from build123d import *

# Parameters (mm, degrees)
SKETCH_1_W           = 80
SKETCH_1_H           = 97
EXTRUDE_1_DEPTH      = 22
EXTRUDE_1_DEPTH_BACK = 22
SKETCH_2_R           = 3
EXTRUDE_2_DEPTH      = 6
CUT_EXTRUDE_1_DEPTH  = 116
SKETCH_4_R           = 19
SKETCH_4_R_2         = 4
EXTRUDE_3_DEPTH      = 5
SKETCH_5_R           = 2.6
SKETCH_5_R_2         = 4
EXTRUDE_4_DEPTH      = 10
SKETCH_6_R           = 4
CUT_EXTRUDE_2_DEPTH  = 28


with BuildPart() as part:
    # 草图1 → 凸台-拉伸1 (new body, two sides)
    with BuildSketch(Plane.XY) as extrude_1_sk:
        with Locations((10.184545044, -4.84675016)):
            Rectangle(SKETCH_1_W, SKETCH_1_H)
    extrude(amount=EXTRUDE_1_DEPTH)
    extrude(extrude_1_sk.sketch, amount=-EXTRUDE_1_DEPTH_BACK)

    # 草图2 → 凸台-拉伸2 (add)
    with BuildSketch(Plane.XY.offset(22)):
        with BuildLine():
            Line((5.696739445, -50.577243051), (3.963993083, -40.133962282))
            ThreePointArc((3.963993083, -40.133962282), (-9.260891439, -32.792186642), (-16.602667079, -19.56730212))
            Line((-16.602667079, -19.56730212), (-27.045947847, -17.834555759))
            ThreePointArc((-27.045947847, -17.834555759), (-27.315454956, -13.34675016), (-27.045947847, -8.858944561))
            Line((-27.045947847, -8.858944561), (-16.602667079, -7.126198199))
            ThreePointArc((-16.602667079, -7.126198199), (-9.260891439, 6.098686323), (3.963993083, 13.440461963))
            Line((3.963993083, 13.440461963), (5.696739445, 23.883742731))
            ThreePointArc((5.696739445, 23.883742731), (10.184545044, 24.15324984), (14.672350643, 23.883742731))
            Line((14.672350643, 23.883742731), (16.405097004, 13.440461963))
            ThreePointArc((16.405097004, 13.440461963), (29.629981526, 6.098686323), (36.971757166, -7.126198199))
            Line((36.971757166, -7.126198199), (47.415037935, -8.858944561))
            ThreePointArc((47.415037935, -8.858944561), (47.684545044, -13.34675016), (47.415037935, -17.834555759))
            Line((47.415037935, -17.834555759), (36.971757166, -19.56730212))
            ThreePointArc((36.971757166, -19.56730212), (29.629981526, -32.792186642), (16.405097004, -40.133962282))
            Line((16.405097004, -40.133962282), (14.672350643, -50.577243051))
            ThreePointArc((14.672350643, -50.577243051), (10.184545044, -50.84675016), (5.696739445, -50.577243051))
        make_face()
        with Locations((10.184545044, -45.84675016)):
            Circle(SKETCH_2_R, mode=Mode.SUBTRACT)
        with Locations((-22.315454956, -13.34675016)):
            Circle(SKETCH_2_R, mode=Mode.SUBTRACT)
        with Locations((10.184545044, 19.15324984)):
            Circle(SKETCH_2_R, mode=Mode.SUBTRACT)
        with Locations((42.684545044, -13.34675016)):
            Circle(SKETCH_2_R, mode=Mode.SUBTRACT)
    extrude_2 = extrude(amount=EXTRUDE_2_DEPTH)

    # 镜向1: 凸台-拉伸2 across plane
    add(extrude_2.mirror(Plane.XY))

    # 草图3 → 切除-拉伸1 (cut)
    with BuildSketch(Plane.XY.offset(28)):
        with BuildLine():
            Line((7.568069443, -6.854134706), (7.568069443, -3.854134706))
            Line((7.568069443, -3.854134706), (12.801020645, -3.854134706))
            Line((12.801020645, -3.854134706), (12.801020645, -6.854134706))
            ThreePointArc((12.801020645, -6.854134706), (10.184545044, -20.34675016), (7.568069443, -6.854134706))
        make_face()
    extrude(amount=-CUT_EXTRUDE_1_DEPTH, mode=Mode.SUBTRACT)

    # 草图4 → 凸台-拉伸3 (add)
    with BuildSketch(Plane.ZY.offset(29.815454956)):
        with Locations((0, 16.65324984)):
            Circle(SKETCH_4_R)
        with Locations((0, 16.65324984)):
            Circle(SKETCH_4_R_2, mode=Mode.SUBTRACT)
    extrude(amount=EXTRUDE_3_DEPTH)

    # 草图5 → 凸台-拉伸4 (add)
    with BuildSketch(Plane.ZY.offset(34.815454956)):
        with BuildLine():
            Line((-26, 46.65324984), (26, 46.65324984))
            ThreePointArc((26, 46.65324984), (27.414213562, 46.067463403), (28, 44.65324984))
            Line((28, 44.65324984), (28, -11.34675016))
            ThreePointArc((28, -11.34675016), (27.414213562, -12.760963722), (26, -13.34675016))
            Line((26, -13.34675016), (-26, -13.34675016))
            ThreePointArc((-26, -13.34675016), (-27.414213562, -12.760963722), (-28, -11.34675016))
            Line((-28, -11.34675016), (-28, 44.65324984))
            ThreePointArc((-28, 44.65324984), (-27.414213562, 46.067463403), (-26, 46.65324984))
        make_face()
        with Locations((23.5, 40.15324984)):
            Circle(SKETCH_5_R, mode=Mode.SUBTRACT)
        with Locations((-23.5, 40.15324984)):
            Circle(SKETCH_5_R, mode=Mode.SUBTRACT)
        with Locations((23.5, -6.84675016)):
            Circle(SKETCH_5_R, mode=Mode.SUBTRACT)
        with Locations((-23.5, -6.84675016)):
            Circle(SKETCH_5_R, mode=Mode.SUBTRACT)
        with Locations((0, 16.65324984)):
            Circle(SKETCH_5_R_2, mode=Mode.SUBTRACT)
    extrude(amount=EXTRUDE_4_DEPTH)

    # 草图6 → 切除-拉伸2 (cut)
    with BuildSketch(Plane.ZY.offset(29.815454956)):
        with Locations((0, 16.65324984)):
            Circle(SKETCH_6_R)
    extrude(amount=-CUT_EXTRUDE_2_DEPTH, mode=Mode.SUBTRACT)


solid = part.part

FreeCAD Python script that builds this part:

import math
import FreeCAD as App
import Part
import Sketcher

V = App.Vector

doc = App.newDocument("Part")
body = doc.addObject("PartDesign::Body", "Body")

# Sketch on XY plane
sketch1 = doc.addObject("Sketcher::SketchObject", "Sketch")
body.addObject(sketch1)
sketch1.AttachmentSupport = (doc.XY_Plane, [""])
sketch1.MapMode = "FlatFace"
sketch1.addGeometry([
    Part.LineSegment(V(-30, 44, 0), V(-30, -53, 0)),
    Part.LineSegment(V(-30, -53, 0), V(50, -53, 0)),
    Part.LineSegment(V(50, -53, 0), V(50, 44, 0)),
    Part.LineSegment(V(50, 44, 0), V(-30, 44, 0)),
], False)
sketch1.addConstraint([
    Sketcher.Constraint("Coincident", 0, 2, 1, 1),
    Sketcher.Constraint("Coincident", 1, 2, 2, 1),
    Sketcher.Constraint("Coincident", 2, 2, 3, 1),
    Sketcher.Constraint("Coincident", 3, 2, 0, 1),
    Sketcher.Constraint("Vertical", 0),
    Sketcher.Constraint("Horizontal", 1),
    Sketcher.Constraint("Vertical", 2),
    Sketcher.Constraint("Horizontal", 3),
    Sketcher.Constraint("DistanceX", 1, 1, 1, 2, 80.0),
    Sketcher.Constraint("DistanceY", 0, 2, 0, 1, 97.0),
    Sketcher.Constraint("DistanceY", 0, 2, -1, 1, 53.34675),
    Sketcher.Constraint("DistanceX", 0, 2, -1, 1, 29.815455),
])
pad1 = doc.addObject("PartDesign::Pad", "Pad")
body.addObject(pad1)
pad1.Profile = sketch1
pad1.Type = "TwoLengths"
pad1.Length = 22
pad1.Length2 = 22

# Sketch on XY plane
sketch2 = doc.addObject("Sketcher::SketchObject", "Sketch001")
body.addObject(sketch2)
sketch2.AttachmentSupport = (doc.XY_Plane, [""])
sketch2.MapMode = "FlatFace"
sketch2.AttachmentOffset = App.Placement(V(0, 0, 22), App.Rotation())
sketch2.addGeometry([
    Part.LineSegment(V(4, -40.1, 0), V(5.7, -50.6, 0)),  # 0
    Part.ArcOfCircle(Part.Circle(V(10.2, -13.3, 0), V(0, 0, 1), 37.5), math.radians(-96.87), math.radians(-83.13)),  # 1
    Part.LineSegment(V(14.7, -50.6, 0), V(16.4, -40.1, 0)),  # 2
    Part.ArcOfCircle(Part.Circle(V(10.2, -13.3, 0), V(0, 0, 1), 27.5), math.radians(-77), math.radians(-13)),  # 3
    Part.LineSegment(V(37, -19.6, 0), V(47.4, -17.8, 0)),  # 4
    Part.ArcOfCircle(Part.Circle(V(10.2, -13.3, 0), V(0, 0, 1), 37.5), math.radians(-6.87), math.radians(6.87)),  # 5
    Part.LineSegment(V(47.4, -8.9, 0), V(37, -7.1, 0)),  # 6
    Part.ArcOfCircle(Part.Circle(V(10.2, -13.3, 0), V(0, 0, 1), 27.5), math.radians(13), math.radians(77)),  # 7
    Part.LineSegment(V(16.4, 13.4, 0), V(14.7, 23.9, 0)),  # 8
    Part.ArcOfCircle(Part.Circle(V(10.2, -13.3, 0), V(0, 0, 1), 37.5), math.radians(83.13), math.radians(96.87)),  # 9
    Part.LineSegment(V(5.7, 23.9, 0), V(4, 13.4, 0)),  # 10
    Part.ArcOfCircle(Part.Circle(V(10.2, -13.3, 0), V(0, 0, 1), 27.5), math.radians(103), math.radians(167)),  # 11
    Part.LineSegment(V(-16.6, -7.1, 0), V(-27, -8.9, 0)),  # 12
    Part.ArcOfCircle(Part.Circle(V(10.2, -13.3, 0), V(0, 0, 1), 37.5), math.radians(173.13), math.radians(186.87)),  # 13
    Part.LineSegment(V(-27, -17.8, 0), V(-16.6, -19.6, 0)),  # 14
    Part.ArcOfCircle(Part.Circle(V(10.2, -13.3, 0), V(0, 0, 1), 27.5), math.radians(-167), math.radians(-103)),  # 15
    Part.Circle(V(10.2, -45.8, 0), V(0, 0, 1), 3),  # 16
    Part.Circle(V(42.7, -13.3, 0), V(0, 0, 1), 3),  # 17
    Part.Circle(V(10.2, 19.2, 0), V(0, 0, 1), 3),  # 18
    Part.Circle(V(-22.3, -13.3, 0), V(0, 0, 1), 3),  # 19
], False)
sketch2.addConstraint([
    Sketcher.Constraint("Coincident", 0, 2, 1, 1),
    Sketcher.Constraint("Coincident", 1, 2, 2, 1),
    Sketcher.Constraint("Coincident", 2, 2, 3, 1),
    Sketcher.Constraint("Coincident", 3, 2, 4, 1),
    Sketcher.Constraint("Coincident", 4, 2, 5, 1),
    Sketcher.Constraint("Coincident", 5, 2, 6, 1),
    Sketcher.Constraint("Coincident", 6, 2, 7, 1),
    Sketcher.Constraint("Coincident", 7, 2, 8, 1),
    Sketcher.Constraint("Coincident", 8, 2, 9, 1),
    Sketcher.Constraint("Coincident", 9, 2, 10, 1),
    Sketcher.Constraint("Coincident", 10, 2, 11, 1),
    Sketcher.Constraint("Coincident", 11, 2, 12, 1),
    Sketcher.Constraint("Coincident", 12, 2, 13, 1),
    Sketcher.Constraint("Coincident", 13, 2, 14, 1),
    Sketcher.Constraint("Coincident", 14, 2, 15, 1),
    Sketcher.Constraint("Coincident", 15, 2, 0, 1),
    Sketcher.Constraint("Coincident", 3, 3, 1, 3),
    Sketcher.Constraint("Coincident", 5, 3, 1, 3),
    Sketcher.Constraint("Coincident", 7, 3, 1, 3),
    Sketcher.Constraint("Coincident", 9, 3, 1, 3),
    Sketcher.Constraint("Coincident", 11, 3, 1, 3),
    Sketcher.Constraint("Coincident", 13, 3, 1, 3),
    Sketcher.Constraint("Coincident", 15, 3, 1, 3),
    Sketcher.Constraint("Equal", 1, 5),
    Sketcher.Constraint("Equal", 3, 7),
    Sketcher.Constraint("Equal", 5, 9),
    Sketcher.Constraint("Equal", 7, 11),
    Sketcher.Constraint("Equal", 9, 13),
    Sketcher.Constraint("Equal", 11, 15),
    Sketcher.Constraint("Equal", 16, 17),
    Sketcher.Constraint("Equal", 17, 18),
    Sketcher.Constraint("Equal", 18, 19),
    Sketcher.Constraint("Perpendicular", 0, 4),
    Sketcher.Constraint("Perpendicular", 2, 6),
    Sketcher.Constraint("Perpendicular", 4, 8),
    Sketcher.Constraint("Perpendicular", 6, 10),
    Sketcher.Constraint("Perpendicular", 8, 12),
    Sketcher.Constraint("Perpendicular", 10, 14),
    Sketcher.Constraint("Horizontal", 15, 3, 17, 3),
    Sketcher.Constraint("Horizontal", 17, 3, 19, 3),
    Sketcher.Constraint("Horizontal", 0, 2, 1, 2),
    Sketcher.Constraint("Horizontal", 8, 2, 9, 2),
    Sketcher.Constraint("Horizontal", 7, 2, 10, 2),
    Sketcher.Constraint("Horizontal", 6, 2, 11, 2),
    Sketcher.Constraint("Horizontal", 4, 2, 13, 2),
    Sketcher.Constraint("Vertical", 15, 3, 16, 3),
    Sketcher.Constraint("Vertical", 16, 3, 18, 3),
    Sketcher.Constraint("Vertical", 4, 2, 5, 2),
    Sketcher.Constraint("Vertical", 2, 2, 7, 2),
    Sketcher.Constraint("Equal", 2, 4),
    Sketcher.Constraint("Diameter", 16, 6.0),
    Sketcher.Constraint("Radius", 1, 37.5),
    Sketcher.Constraint("Radius", 3, 27.5),
    Sketcher.Constraint("DistanceY", 16, 3, 9, 3, 32.5),
    Sketcher.Constraint("DistanceX", 13, 3, 17, 3, 32.5),
    Sketcher.Constraint("DistanceY", 1, 3, 18, 3, 32.5),
    Sketcher.Constraint("DistanceX", 19, 3, 5, 3, 32.5),
    Sketcher.Constraint("DistanceY", 6, 2, -1, 1, 7.126198),
    Sketcher.Constraint("DistanceY", 1, 3, -1, 1, 13.34675),
    Sketcher.Constraint("DistanceX", -1, 1, 0, 2, 5.696739),
    Sketcher.Constraint("DistanceX", -1, 1, 1, 2, 14.672351),
])
pad2 = doc.addObject("PartDesign::Pad", "Pad001")
body.addObject(pad2)
pad2.Profile = sketch2
pad2.Length = 6
doc.recompute()

mirrored = doc.addObject("PartDesign::Mirrored", "Mirrored")
body.addObject(mirrored)
mirrored.Originals = [pad2]
mirrored.MirrorPlane = (doc.XY_Plane, [""])
body.Tip = mirrored

# Sketch on XY plane
sketch3 = doc.addObject("Sketcher::SketchObject", "Sketch002")
body.addObject(sketch3)
sketch3.AttachmentSupport = (doc.XY_Plane, [""])
sketch3.MapMode = "FlatFace"
sketch3.AttachmentOffset = App.Placement(V(0, 0, 28), App.Rotation())
sketch3.addGeometry([
    Part.LineSegment(V(7.6, -3.9, 0), V(7.6, -6.9, 0)),
    Part.ArcOfCircle(Part.Circle(V(10.2, -13.3, 0), V(0, 0, 1), 7), math.radians(112), math.radians(428)),
    Part.LineSegment(V(12.8, -6.9, 0), V(12.8, -3.9, 0)),
    Part.LineSegment(V(12.8, -3.9, 0), V(7.6, -3.9, 0)),
], False)
sketch3.addConstraint([
    Sketcher.Constraint("Coincident", 0, 2, 1, 1),
    Sketcher.Constraint("Coincident", 1, 2, 2, 1),
    Sketcher.Constraint("Coincident", 2, 2, 3, 1),
    Sketcher.Constraint("Coincident", 3, 2, 0, 1),
    Sketcher.Constraint("Vertical", 0),
    Sketcher.Constraint("Vertical", 2),
    Sketcher.Constraint("Horizontal", 3),
    Sketcher.Constraint("Horizontal", 0, 2, 1, 2),
    Sketcher.Constraint("Radius", 1, 7.0),
    Sketcher.Constraint("DistanceY", 0, 2, 0, 1, 3.0),
    Sketcher.Constraint("DistanceX", 3, 2, 3, 1, 5.232951),
    Sketcher.Constraint("DistanceY", 1, 3, -1, 1, 13.34675),
    Sketcher.Constraint("DistanceX", -1, 1, 0, 2, 7.568069),
])
pocket1 = doc.addObject("PartDesign::Pocket", "Pocket")
body.addObject(pocket1)
pocket1.Profile = sketch3
pocket1.Length = 116

# Sketch on YZ plane
sketch4 = doc.addObject("Sketcher::SketchObject", "Sketch003")
body.addObject(sketch4)
sketch4.AttachmentSupport = (doc.YZ_Plane, [""])
sketch4.MapMode = "FlatFace"
sketch4.AttachmentOffset = App.Placement(V(0, 0, -29.815455), App.Rotation())
sketch4.addGeometry([
    Part.Circle(V(16.7, 0, 0), V(0, 0, 1), 19),
    Part.Circle(V(16.7, 0, 0), V(0, 0, 1), 4),
], False)
sketch4.addConstraint([
    Sketcher.Constraint("Coincident", 1, 3, 0, 3),
    Sketcher.Constraint("PointOnObject", 0, 3, -1),
    Sketcher.Constraint("Diameter", 0, 38.0),
    Sketcher.Constraint("Diameter", 1, 8.0),
    Sketcher.Constraint("DistanceX", -1, 1, 0, 3, 16.65325),
])
pad3 = doc.addObject("PartDesign::Pad", "Pad002")
body.addObject(pad3)
pad3.Profile = sketch4
pad3.Length = 5
pad3.Reversed = True

# Sketch on YZ plane
sketch5 = doc.addObject("Sketcher::SketchObject", "Sketch004")
body.addObject(sketch5)
sketch5.AttachmentSupport = (doc.YZ_Plane, [""])
sketch5.MapMode = "FlatFace"
sketch5.AttachmentOffset = App.Placement(V(0, 0, -34.815455), App.Rotation())
sketch5.addGeometry([
    Part.LineSegment(V(46.7, 26, 0), V(46.7, -26, 0)),  # 0
    Part.ArcOfCircle(Part.Circle(V(44.7, -26, 0), V(0, 0, 1), 2), math.radians(-90), math.radians(0)),  # 1
    Part.LineSegment(V(44.7, -28, 0), V(-11.3, -28, 0)),  # 2
    Part.ArcOfCircle(Part.Circle(V(-11.3, -26, 0), V(0, 0, 1), 2), math.radians(-180), math.radians(-90)),  # 3
    Part.LineSegment(V(-13.3, -26, 0), V(-13.3, 26, 0)),  # 4
    Part.ArcOfCircle(Part.Circle(V(-11.3, 26, 0), V(0, 0, 1), 2), math.radians(90), math.radians(180)),  # 5
    Part.LineSegment(V(-11.3, 28, 0), V(44.7, 28, 0)),  # 6
    Part.ArcOfCircle(Part.Circle(V(44.7, 26, 0), V(0, 0, 1), 2), math.radians(0), math.radians(90)),  # 7
    Part.Circle(V(-6.8, 23.5, 0), V(0, 0, 1), 2.6),  # 8
    Part.Circle(V(-6.8, -23.5, 0), V(0, 0, 1), 2.6),  # 9
    Part.Circle(V(40.2, 23.5, 0), V(0, 0, 1), 2.6),  # 10
    Part.Circle(V(16.7, 0, 0), V(0, 0, 1), 4),  # 11
    Part.Circle(V(40.2, -23.5, 0), V(0, 0, 1), 2.6),  # 12
], False)
sketch5.addConstraint([
    Sketcher.Constraint("Tangent", 0, 2, 1, 2),
    Sketcher.Constraint("Tangent", 1, 1, 2, 1),
    Sketcher.Constraint("Tangent", 2, 2, 3, 2),
    Sketcher.Constraint("Tangent", 3, 1, 4, 1),
    Sketcher.Constraint("Tangent", 4, 2, 5, 2),
    Sketcher.Constraint("Tangent", 5, 1, 6, 1),
    Sketcher.Constraint("Tangent", 6, 2, 7, 2),
    Sketcher.Constraint("Tangent", 7, 1, 0, 1),
    Sketcher.Constraint("Vertical", 0),
    Sketcher.Constraint("Horizontal", 2),
    Sketcher.Constraint("Vertical", 4),
    Sketcher.Constraint("Horizontal", 6),
    Sketcher.Constraint("Equal", 1, 3),
    Sketcher.Constraint("Equal", 3, 5),
    Sketcher.Constraint("Equal", 5, 7),
    Sketcher.Constraint("Equal", 8, 9),
    Sketcher.Constraint("Equal", 9, 10),
    Sketcher.Constraint("Equal", 10, 12),
    Sketcher.Constraint("Symmetric", 8, 3, 9, 3, -1),
    Sketcher.Constraint("Symmetric", 10, 3, 12, 3, -1),
    Sketcher.Constraint("PointOnObject", 11, 3, -1),
    Sketcher.Constraint("Horizontal", 8, 3, 10, 3),
    Sketcher.Constraint("Diameter", 11, 8.0),
    Sketcher.Constraint("Radius", 1, 2.0),
    Sketcher.Constraint("Diameter", 8, 5.2),
    Sketcher.Constraint("DistanceX", 2, 2, 2, 1, 56.0),
    Sketcher.Constraint("DistanceY", 0, 2, 0, 1, 52.0),
    Sketcher.Constraint("DistanceY", 1, 3, -1, 1, 26.0),
    Sketcher.Constraint("DistanceY", 9, 3, 8, 3, 47.0),
    Sketcher.Constraint("DistanceX", 8, 3, 10, 3, 47.0),
    Sketcher.Constraint("DistanceX", 3, 3, 11, 3, 28.0),
    Sketcher.Constraint("DistanceX", 5, 3, 8, 3, 4.5),
    Sketcher.Constraint("DistanceX", -1, 1, 1, 3, 44.65325),
])
pad4 = doc.addObject("PartDesign::Pad", "Pad003")
body.addObject(pad4)
pad4.Profile = sketch5
pad4.Length = 10
pad4.Reversed = True

# Sketch on YZ plane
sketch6 = doc.addObject("Sketcher::SketchObject", "Sketch005")
body.addObject(sketch6)
sketch6.AttachmentSupport = (doc.YZ_Plane, [""])
sketch6.MapMode = "FlatFace"
sketch6.AttachmentOffset = App.Placement(V(0, 0, -29.815455), App.Rotation())
sketch6.addGeometry(Part.Circle(V(16.7, 0, 0), V(0, 0, 1), 4), False)
sketch6.addConstraint([
    Sketcher.Constraint("PointOnObject", 0, 3, -1),
    Sketcher.Constraint("Diameter", 0, 8.0),
    Sketcher.Constraint("DistanceX", -1, 1, 0, 3, 16.65325),
])
pocket2 = doc.addObject("PartDesign::Pocket", "Pocket001")
body.addObject(pocket2)
pocket2.Profile = sketch6
pocket2.Length = 28
pocket2.Reversed = True

doc.recompute()
